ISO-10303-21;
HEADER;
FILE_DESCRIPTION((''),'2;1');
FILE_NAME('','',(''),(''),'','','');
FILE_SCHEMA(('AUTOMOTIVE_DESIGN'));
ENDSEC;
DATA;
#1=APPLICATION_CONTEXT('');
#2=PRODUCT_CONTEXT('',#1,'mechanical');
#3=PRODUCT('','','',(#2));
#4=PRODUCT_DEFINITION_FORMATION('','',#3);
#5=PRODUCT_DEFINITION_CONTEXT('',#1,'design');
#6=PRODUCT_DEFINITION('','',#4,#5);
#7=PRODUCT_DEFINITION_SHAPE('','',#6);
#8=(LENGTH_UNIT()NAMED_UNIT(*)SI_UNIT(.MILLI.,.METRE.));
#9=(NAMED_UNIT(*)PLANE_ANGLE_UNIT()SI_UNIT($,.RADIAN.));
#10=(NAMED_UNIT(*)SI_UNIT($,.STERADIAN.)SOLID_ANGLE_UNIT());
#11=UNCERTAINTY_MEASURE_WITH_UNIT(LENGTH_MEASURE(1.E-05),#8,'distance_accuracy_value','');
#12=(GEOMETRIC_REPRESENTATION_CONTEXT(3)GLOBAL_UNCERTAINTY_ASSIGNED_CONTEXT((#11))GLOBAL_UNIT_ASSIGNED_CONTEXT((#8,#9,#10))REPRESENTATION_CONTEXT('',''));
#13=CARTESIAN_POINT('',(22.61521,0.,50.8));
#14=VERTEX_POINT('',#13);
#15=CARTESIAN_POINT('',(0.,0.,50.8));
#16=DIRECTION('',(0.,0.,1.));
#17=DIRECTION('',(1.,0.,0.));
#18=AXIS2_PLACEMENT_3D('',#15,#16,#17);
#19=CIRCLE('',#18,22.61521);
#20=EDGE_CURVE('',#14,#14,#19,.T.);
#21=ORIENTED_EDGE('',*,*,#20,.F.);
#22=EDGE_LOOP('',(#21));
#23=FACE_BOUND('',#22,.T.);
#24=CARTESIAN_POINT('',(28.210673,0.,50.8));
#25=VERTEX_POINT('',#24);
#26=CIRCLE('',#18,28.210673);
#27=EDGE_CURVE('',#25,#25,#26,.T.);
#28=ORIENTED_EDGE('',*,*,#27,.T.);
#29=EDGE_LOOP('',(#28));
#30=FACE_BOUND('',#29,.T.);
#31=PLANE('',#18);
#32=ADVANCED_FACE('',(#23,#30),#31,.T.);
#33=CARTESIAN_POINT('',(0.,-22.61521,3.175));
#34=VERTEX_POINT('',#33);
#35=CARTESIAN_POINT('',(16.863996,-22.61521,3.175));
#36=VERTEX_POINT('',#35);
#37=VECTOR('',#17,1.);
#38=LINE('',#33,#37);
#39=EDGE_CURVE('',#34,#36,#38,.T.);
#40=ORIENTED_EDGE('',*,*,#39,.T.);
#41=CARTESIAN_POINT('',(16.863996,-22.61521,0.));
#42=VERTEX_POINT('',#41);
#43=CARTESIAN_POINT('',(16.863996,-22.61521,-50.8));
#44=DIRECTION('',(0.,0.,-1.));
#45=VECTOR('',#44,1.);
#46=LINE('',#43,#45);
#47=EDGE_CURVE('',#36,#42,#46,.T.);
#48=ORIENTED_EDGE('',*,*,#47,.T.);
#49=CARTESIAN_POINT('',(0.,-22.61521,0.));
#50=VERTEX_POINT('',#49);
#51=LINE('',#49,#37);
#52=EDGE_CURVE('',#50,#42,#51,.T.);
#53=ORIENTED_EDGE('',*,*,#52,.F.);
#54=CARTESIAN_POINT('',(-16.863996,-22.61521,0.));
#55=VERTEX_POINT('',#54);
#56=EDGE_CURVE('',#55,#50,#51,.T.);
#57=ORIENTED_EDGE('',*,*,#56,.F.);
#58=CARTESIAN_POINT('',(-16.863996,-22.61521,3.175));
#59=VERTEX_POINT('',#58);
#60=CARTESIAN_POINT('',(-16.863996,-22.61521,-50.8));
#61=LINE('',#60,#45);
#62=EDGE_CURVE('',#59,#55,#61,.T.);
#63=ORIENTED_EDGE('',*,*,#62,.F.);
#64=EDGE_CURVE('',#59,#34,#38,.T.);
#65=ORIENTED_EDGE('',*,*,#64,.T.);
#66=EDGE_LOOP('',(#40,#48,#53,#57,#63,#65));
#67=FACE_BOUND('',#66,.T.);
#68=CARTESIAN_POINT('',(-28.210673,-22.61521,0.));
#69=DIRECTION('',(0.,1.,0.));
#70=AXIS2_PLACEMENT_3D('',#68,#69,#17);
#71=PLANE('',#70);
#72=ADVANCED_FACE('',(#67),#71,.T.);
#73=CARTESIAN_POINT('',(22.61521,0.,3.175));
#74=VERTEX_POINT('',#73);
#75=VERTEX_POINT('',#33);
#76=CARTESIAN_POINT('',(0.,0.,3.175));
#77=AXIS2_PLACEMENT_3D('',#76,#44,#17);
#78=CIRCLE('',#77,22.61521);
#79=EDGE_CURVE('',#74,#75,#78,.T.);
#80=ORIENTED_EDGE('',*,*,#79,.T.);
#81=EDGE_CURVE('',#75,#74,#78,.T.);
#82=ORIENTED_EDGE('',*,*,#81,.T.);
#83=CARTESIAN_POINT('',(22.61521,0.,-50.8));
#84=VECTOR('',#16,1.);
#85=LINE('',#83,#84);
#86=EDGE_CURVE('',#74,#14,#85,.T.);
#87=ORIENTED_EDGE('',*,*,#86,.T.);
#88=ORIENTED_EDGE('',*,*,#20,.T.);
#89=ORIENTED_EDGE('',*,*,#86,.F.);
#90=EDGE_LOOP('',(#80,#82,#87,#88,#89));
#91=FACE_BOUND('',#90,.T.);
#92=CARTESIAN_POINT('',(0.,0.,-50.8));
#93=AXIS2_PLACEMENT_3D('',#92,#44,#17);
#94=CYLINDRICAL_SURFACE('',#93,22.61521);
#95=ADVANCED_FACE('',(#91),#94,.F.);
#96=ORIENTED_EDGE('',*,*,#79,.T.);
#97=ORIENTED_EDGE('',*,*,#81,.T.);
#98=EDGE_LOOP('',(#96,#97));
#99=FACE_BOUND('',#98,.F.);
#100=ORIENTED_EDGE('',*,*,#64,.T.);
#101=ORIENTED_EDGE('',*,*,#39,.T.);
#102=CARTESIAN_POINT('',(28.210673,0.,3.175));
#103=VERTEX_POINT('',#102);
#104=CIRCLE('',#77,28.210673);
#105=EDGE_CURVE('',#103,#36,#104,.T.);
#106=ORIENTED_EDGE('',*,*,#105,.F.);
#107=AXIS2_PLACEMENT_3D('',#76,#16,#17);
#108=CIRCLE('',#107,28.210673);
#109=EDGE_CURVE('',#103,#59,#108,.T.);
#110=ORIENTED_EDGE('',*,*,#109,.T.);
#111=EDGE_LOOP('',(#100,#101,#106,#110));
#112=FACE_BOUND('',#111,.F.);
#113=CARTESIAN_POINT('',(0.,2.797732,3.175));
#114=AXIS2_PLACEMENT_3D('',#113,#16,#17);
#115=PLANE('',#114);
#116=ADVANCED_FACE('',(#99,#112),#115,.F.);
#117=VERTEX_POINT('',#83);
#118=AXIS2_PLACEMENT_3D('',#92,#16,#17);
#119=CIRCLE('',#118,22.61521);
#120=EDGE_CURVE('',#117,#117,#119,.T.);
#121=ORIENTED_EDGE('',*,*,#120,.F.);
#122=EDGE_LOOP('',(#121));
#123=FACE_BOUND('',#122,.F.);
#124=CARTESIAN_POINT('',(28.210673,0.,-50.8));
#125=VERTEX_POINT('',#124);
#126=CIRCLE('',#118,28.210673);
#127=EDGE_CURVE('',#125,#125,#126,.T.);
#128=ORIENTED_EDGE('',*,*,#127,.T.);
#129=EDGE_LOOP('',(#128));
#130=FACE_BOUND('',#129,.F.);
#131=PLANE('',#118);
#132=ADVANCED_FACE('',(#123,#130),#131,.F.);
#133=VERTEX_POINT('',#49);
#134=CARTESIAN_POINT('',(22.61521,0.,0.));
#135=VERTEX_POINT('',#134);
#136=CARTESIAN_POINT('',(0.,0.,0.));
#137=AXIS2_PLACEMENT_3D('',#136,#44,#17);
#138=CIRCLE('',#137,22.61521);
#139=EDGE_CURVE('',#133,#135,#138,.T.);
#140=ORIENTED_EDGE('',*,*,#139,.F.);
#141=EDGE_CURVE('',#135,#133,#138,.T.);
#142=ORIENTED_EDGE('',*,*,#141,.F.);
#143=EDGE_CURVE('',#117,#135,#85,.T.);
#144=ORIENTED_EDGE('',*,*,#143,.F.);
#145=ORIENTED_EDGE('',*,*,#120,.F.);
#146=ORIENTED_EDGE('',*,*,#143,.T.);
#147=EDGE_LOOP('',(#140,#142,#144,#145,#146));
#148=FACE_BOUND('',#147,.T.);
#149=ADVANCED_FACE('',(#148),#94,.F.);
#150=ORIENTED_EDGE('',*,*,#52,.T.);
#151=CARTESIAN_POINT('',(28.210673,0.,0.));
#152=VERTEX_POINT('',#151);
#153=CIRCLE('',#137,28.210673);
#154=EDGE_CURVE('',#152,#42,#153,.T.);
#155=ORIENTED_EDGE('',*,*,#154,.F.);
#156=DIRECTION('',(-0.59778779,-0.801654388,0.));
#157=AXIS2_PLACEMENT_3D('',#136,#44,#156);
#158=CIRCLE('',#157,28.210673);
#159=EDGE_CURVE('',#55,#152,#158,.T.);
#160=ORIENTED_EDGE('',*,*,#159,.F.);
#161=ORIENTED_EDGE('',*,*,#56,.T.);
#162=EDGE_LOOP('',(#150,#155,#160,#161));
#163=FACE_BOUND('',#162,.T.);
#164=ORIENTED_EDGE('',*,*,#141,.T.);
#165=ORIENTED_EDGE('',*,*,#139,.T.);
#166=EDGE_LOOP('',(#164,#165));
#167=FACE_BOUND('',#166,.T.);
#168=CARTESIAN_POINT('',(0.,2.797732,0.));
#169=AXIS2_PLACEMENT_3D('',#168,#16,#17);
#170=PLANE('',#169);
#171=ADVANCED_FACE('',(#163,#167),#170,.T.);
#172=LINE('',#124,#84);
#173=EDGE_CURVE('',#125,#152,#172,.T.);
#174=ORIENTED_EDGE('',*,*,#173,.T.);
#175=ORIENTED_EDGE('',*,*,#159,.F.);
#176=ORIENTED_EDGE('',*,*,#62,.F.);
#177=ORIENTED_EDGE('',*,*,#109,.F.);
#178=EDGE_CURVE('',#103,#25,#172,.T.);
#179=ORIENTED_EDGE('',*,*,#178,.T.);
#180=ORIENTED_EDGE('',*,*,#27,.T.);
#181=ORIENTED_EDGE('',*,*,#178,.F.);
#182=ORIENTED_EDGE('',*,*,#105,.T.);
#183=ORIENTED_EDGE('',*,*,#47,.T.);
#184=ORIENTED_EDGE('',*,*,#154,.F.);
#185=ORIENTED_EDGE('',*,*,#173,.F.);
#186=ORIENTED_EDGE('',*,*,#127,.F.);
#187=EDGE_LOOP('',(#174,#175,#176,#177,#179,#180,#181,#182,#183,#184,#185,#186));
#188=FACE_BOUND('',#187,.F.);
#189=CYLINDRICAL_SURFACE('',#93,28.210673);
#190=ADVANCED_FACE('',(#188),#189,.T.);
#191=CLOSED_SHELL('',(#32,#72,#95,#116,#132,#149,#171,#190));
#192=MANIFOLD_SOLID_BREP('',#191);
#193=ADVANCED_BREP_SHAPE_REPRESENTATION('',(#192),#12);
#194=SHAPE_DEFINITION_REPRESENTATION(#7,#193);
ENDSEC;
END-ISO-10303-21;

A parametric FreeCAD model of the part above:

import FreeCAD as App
import Part
import Sketcher

V = App.Vector
Q = App.Units.Quantity

doc = App.newDocument("Part")
body = doc.addObject("PartDesign::Body", "Body")

sketch1 = doc.addObject("Sketcher::SketchObject", "Sketch")
body.addObject(sketch1)
sketch1.AttachmentSupport = (doc.XY_Plane, [""])
sketch1.MapMode = "FlatFace"
sketch1.addGeometry([
    Part.Circle(V(0, 0, 0), V(0, 0, 1), 28),
    Part.Circle(V(0, 0, 0), V(0, 0, 1), 23),
], False)
sketch1.addConstraint([
    Sketcher.Constraint("Coincident", 0, 3, -1, 1),
    Sketcher.Constraint("Coincident", 1, 3, -1, 1),
    Sketcher.Constraint("Diameter", 1, Q("45.230419 mm")),
    Sketcher.Constraint("Diameter", 0, Q("56.421346 mm")),
])
pad1 = doc.addObject("PartDesign::Pad", "Pad")
body.addObject(pad1)
pad1.Profile = sketch1
pad1.Length = Q("4 in")
body2 = doc.addObject("PartDesign::Body", "Body001")
doc.recompute()

body.Placement = App.Placement(V(0, 0, -50.8), App.Rotation(V(0, 0, 1), 0))
boolean = doc.addObject("PartDesign::Boolean", "Boolean")
body2.addObject(boolean)
boolean.Type = "Fuse"
boolean.addObjects([body])

sketch2 = doc.addObject("Sketcher::SketchObject", "Sketch001")
body2.addObject(sketch2)
sketch2.AttachmentSupport = (doc.getObject("XY_Plane001"), [""])
sketch2.MapMode = "FlatFace"
sketch2.addGeometry([
    Part.LineSegment(V(-28, 28, 0), V(-28, -23, 0)),
    Part.LineSegment(V(-28, -23, 0), V(28, -23, 0)),
    Part.LineSegment(V(28, -23, 0), V(28, 28, 0)),
    Part.LineSegment(V(28, 28, 0), V(-28, 28, 0)),
], False)
sketch2.addConstraint([
    Sketcher.Constraint("Coincident", 0, 2, 1, 1),
    Sketcher.Constraint("Coincident", 1, 2, 2, 1),
    Sketcher.Constraint("Coincident", 2, 2, 3, 1),
    Sketcher.Constraint("Coincident", 3, 2, 0, 1),
    Sketcher.Constraint("Vertical", 0),
    Sketcher.Constraint("Horizontal", 1),
    Sketcher.Constraint("Vertical", 2),
    Sketcher.Constraint("Horizontal", 3),
    Sketcher.Constraint("DistanceX", 1, 1, 1, 2, Q("56.421346 mm")),
    Sketcher.Constraint("DistanceY", 0, 2, 0, 1, Q("50.825882 mm")),
    Sketcher.Constraint("DistanceY", 0, 2, -1, 1, Q("22.61521 mm")),
    Sketcher.Constraint("DistanceX", 0, 2, -1, 1, Q("28.210673 mm")),
])
pocket1 = doc.addObject("PartDesign::Pocket", "Pocket")
body2.addObject(pocket1)
pocket1.Profile = sketch2
pocket1.Length = Q("0.125 in")
pocket1.Reversed = True

doc.recompute()
